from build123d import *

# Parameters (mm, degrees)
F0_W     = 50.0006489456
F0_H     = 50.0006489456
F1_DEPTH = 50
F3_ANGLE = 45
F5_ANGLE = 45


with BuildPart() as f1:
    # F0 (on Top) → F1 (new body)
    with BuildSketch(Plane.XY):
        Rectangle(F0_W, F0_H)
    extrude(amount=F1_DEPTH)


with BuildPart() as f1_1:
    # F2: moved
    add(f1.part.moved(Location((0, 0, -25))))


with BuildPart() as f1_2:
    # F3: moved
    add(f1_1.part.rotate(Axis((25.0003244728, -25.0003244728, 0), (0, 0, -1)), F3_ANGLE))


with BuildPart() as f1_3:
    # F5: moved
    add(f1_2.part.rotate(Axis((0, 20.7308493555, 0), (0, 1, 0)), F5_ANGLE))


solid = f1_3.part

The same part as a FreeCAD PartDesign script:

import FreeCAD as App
import Part
import Sketcher
from FreeCAD import Vector

doc = App.newDocument("Part")
params = doc.addObject("Spreadsheet::Sheet", "Params")
for row, (alias, value) in enumerate([
    ("pad1_length", "50 mm"),
], start=1):
    params.set(f"A{row}", alias)
    params.set(f"B{row}", "=" + value)
    params.setAlias(f"B{row}", alias)

body = doc.addObject("PartDesign::Body", "Body")

# Sketch on XY plane
sketch1 = body.newObject("Sketcher::SketchObject", "Sketch")
sketch1.AttachmentSupport = (doc.getObject("XY_Plane"), [""])
sketch1.MapMode = "FlatFace"
sketch1.addGeometry([
    Part.LineSegment(Vector(-25, 25, 0), Vector(-25, -25, 0)),
    Part.LineSegment(Vector(-25, -25, 0), Vector(25, -25, 0)),
    Part.LineSegment(Vector(25, -25, 0), Vector(25, 25, 0)),
    Part.LineSegment(Vector(25, 25, 0), Vector(-25, 25, 0)),
], False)
sketch1.addConstraint([
    Sketcher.Constraint("Coincident", 0, 2, 1, 1),
    Sketcher.Constraint("Coincident", 1, 2, 2, 1),
    Sketcher.Constraint("Coincident", 2, 2, 3, 1),
    Sketcher.Constraint("Coincident", 3, 2, 0, 1),
    Sketcher.Constraint("Vertical", 0),
    Sketcher.Constraint("Horizontal", 1),
    Sketcher.Constraint("Vertical", 2),
    Sketcher.Constraint("Horizontal", 3),
    Sketcher.Constraint("Symmetric", 0, 2, 2, 2, -1, 1),
    Sketcher.Constraint("Equal", 3, 0),
    Sketcher.Constraint("DistanceX", 1, 1, 1, 2, 50.000649),
])
pad1 = body.newObject("PartDesign::Pad", "Pad")
pad1.Profile = sketch1
pad1.setExpression("Length", "Params.pad1_length")
body2 = doc.addObject("PartDesign::Body", "Body001")
doc.recompute()

body.Placement = App.Placement(Vector(0, 0, -25), App.Rotation(Vector(0, 0, 1), 0))
boolean = body2.newObject("PartDesign::Boolean", "Boolean")
boolean.Type = "Fuse"
boolean.addObjects([body])
body3 = doc.addObject("PartDesign::Body", "Body002")
doc.recompute()

body2.Placement = App.Placement(Vector(25.000324, 10.355473, 0), App.Rotation(Vector(0, 0, -1), 45))
boolean2 = body3.newObject("PartDesign::Boolean", "Boolean001")
boolean2.Type = "Fuse"
boolean2.addObjects([body2])
body4 = doc.addObject("PartDesign::Body", "Body003")
doc.recompute()

body3.Placement = App.Placement(Vector(0, 0, 0), App.Rotation(Vector(0, 1, 0), 45))
boolean3 = body4.newObject("PartDesign::Boolean", "Boolean002")
boolean3.Type = "Fuse"
boolean3.addObjects([body3])

doc.recompute()
